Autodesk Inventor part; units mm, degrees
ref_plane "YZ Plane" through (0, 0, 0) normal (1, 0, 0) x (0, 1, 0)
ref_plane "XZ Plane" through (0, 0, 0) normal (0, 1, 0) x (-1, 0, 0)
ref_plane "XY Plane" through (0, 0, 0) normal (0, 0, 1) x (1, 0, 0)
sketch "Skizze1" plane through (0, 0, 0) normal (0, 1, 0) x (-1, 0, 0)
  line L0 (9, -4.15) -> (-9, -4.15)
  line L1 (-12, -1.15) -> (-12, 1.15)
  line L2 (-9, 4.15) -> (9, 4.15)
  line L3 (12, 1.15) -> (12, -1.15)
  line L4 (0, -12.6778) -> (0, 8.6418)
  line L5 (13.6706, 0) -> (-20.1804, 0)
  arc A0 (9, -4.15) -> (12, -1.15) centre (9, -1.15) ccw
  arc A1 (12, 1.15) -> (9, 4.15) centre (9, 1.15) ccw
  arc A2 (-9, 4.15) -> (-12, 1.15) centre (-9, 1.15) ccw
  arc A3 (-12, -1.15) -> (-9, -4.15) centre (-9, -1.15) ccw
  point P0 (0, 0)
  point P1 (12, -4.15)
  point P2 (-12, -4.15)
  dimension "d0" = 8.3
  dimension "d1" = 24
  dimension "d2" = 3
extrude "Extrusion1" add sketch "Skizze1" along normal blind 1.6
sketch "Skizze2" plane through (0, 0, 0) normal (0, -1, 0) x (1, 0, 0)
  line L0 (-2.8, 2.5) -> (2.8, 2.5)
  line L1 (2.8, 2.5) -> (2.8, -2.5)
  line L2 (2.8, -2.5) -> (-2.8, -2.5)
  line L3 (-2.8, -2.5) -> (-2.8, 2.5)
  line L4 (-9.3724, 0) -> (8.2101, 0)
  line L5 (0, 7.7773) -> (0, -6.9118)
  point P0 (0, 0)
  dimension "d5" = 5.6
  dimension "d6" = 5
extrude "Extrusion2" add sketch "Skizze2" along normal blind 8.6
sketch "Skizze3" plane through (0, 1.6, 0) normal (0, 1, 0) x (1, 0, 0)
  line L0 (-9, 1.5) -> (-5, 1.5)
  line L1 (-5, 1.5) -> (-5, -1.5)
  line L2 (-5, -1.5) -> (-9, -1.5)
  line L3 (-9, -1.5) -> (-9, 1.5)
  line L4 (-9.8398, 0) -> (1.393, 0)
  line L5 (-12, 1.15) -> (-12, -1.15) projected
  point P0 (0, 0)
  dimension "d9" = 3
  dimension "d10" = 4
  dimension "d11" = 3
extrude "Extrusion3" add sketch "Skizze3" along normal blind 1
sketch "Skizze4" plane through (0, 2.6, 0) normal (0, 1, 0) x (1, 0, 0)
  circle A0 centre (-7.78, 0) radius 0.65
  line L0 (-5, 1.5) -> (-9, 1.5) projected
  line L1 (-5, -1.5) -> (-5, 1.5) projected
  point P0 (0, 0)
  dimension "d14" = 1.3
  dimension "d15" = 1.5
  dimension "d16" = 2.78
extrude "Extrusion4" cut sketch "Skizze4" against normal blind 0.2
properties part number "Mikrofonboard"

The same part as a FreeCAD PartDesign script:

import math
import FreeCAD as App
import Part
import Sketcher
Q = App.Units.Quantity


def add_polygon(sketch, points):
    """Adds a closed chain of lines whose ends are joined by coincident constraints."""
    first, n = sketch.GeometryCount, len(points)
    for a, b in zip(points, points[1:] + points[:1]):
        sketch.addGeometry(Part.LineSegment(App.Vector(*a, 0), App.Vector(*b, 0)), False)
    for i in range(n):
        sketch.addConstraint(Sketcher.Constraint("Coincident", first + i, 2, first + (i + 1) % n, 1))

doc = App.newDocument("Part")
body = doc.addObject("PartDesign::Body", "Body")

# Sketch on XZ plane
sketch1 = body.newObject("Sketcher::SketchObject", "Sketch")
sketch1.AttachmentSupport = (doc.getObject("XZ_Plane"), [""])
sketch1.MapMode = "FlatFace"
sketch1.addGeometry([
    Part.ArcOfCircle(Part.Circle(App.Vector(-9, -1.15, 0), App.Vector(0, 0, 1), 3), math.radians(180), math.radians(270)),  # 0
    Part.LineSegment(App.Vector(-12, -1.15, 0), App.Vector(-12, 1.15, 0)),  # 1
    Part.ArcOfCircle(Part.Circle(App.Vector(-9, 1.15, 0), App.Vector(0, 0, 1), 3), math.radians(90), math.radians(180)),  # 2
    Part.LineSegment(App.Vector(-9, 4.15, 0), App.Vector(9, 4.15, 0)),  # 3
    Part.ArcOfCircle(Part.Circle(App.Vector(9, 1.15, 0), App.Vector(0, 0, 1), 3), math.radians(0), math.radians(90)),  # 4
    Part.LineSegment(App.Vector(12, 1.15, 0), App.Vector(12, -1.15, 0)),  # 5
    Part.ArcOfCircle(Part.Circle(App.Vector(9, -1.15, 0), App.Vector(0, 0, 1), 3), math.radians(-90), math.radians(0)),  # 6
    Part.LineSegment(App.Vector(9, -4.15, 0), App.Vector(-9, -4.15, 0)),  # 7
], False)
sketch1.addConstraint([
    Sketcher.Constraint("Tangent", 0, 1, 1, 1),
    Sketcher.Constraint("Tangent", 1, 2, 2, 2),
    Sketcher.Constraint("Tangent", 2, 1, 3, 1),
    Sketcher.Constraint("Tangent", 3, 2, 4, 2),
    Sketcher.Constraint("Tangent", 4, 1, 5, 1),
    Sketcher.Constraint("Tangent", 5, 2, 6, 2),
    Sketcher.Constraint("Tangent", 6, 1, 7, 1),
    Sketcher.Constraint("Tangent", 7, 2, 0, 2),
    Sketcher.Constraint("Vertical", 1),
    Sketcher.Constraint("Horizontal", 3),
    Sketcher.Constraint("Vertical", 5),
    Sketcher.Constraint("Horizontal", 7),
    Sketcher.Constraint("Equal", 0, 2),
    Sketcher.Constraint("Equal", 2, 4),
    Sketcher.Constraint("Equal", 4, 6),
    Sketcher.Constraint("Symmetric", 0, 3, 4, 3, -1, 1),
    Sketcher.Constraint("Radius", 0, Q("3 mm")),
    Sketcher.Constraint("DistanceY", 6, 1, 3, 2, Q("8.3 mm")),
    Sketcher.Constraint("DistanceX", 3, 1, 3, 2, Q("18 mm")),
])
pad1 = body.newObject("PartDesign::Pad", "Pad")
pad1.Profile = sketch1
pad1.Length = 1.6
pad1.Reversed = True

# Sketch on XZ plane
sketch2 = body.newObject("Sketcher::SketchObject", "Sketch001")
sketch2.AttachmentSupport = (doc.getObject("XZ_Plane"), [""])
sketch2.MapMode = "FlatFace"
add_polygon(sketch2, [(-2.8, 2.5), (-2.8, -2.5), (2.8, -2.5), (2.8, 2.5)])  # lines 0-3
sketch2.addConstraint([
    Sketcher.Constraint("Vertical", 0),
    Sketcher.Constraint("Horizontal", 1),
    Sketcher.Constraint("Vertical", 2),
    Sketcher.Constraint("Horizontal", 3),
    Sketcher.Constraint("Symmetric", 0, 2, 2, 2, -1, 1),
    Sketcher.Constraint("DistanceY", 0, 2, 0, 1, Q("5 mm")),
    Sketcher.Constraint("DistanceX", 1, 1, 1, 2, Q("5.6 mm")),
])
pad2 = body.newObject("PartDesign::Pad", "Pad001")
pad2.Profile = sketch2
pad2.Length = 8.6

# Sketch on XZ plane
sketch3 = body.newObject("Sketcher::SketchObject", "Sketch002")
sketch3.AttachmentSupport = (doc.getObject("XZ_Plane"), [""])
sketch3.MapMode = "FlatFace"
sketch3.AttachmentOffset = App.Placement(App.Vector(0, 0, -1.6), App.Rotation())
add_polygon(sketch3, [(-5, -1.5), (-9, -1.5), (-9, 1.5), (-5, 1.5)])  # lines 0-3
sketch3.addConstraint([
    Sketcher.Constraint("Horizontal", 0),
    Sketcher.Constraint("Vertical", 1),
    Sketcher.Constraint("Horizontal", 2),
    Sketcher.Constraint("Vertical", 3),
    Sketcher.Constraint("DistanceX", 0, 2, 0, 1, Q("4 mm")),
    Sketcher.Constraint("DistanceY", 1, 1, 1, 2, Q("3 mm")),
    Sketcher.Constraint("DistanceX", 0, 2, -1, 1, Q("9 mm")),
    Sketcher.Constraint("DistanceY", 0, 2, -1, 1, Q("1.5 mm")),
])
pad3 = body.newObject("PartDesign::Pad", "Pad002")
pad3.Profile = sketch3
pad3.Length = 1
pad3.Reversed = True

# Sketch on XZ plane
sketch4 = body.newObject("Sketcher::SketchObject", "Sketch003")
sketch4.AttachmentSupport = (doc.getObject("XZ_Plane"), [""])
sketch4.MapMode = "FlatFace"
sketch4.AttachmentOffset = App.Placement(App.Vector(0, 0, -2.6), App.Rotation())
sketch4.addGeometry(Part.Circle(App.Vector(-7.78, 0, 0), App.Vector(0, 0, 1), 0.65), False)
sketch4.addConstraint([
    Sketcher.Constraint("PointOnObject", 0, 3, -1),
    Sketcher.Constraint("Diameter", 0, Q("1.3 mm")),
    Sketcher.Constraint("DistanceX", 0, 3, -1, 1, Q("7.78 mm")),
])
pocket1 = body.newObject("PartDesign::Pocket", "Pocket")
pocket1.Profile = sketch4
pocket1.Length = 0.2
pocket1.Reversed = True

doc.recompute()
